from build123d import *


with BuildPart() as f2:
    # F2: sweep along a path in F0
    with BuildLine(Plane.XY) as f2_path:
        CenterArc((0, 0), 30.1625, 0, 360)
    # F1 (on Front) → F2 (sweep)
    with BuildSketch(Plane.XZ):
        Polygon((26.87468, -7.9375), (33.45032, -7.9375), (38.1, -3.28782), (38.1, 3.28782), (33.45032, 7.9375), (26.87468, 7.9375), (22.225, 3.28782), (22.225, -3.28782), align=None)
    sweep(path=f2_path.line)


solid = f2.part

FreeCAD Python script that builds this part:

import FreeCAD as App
import Part
import Sketcher
Q = App.Units.Quantity


def add_polygon(sketch, points):
    """Adds a closed chain of lines whose ends are joined by coincident constraints."""
    first, n = sketch.GeometryCount, len(points)
    for a, b in zip(points, points[1:] + points[:1]):
        sketch.addGeometry(Part.LineSegment(App.Vector(*a, 0), App.Vector(*b, 0)), False)
    for i in range(n):
        sketch.addConstraint(Sketcher.Constraint("Coincident", first + i, 2, first + (i + 1) % n, 1))

doc = App.newDocument("Part")
body = doc.addObject("PartDesign::Body", "Body")

sketch1 = body.newObject("Sketcher::SketchObject", "Sketch")
sketch1.AttachmentSupport = (doc.getObject("XZ_Plane"), [""])
sketch1.MapMode = "FlatFace"
add_polygon(sketch1, [(27, -8), (33, -8), (38, -3), (38, 3), (33, 8), (27, 8), (22, 3), (22, -3)])
sketch1.addConstraint([
    Sketcher.Constraint("Horizontal", 0),
    Sketcher.Constraint("Vertical", 2),
    Sketcher.Constraint("Horizontal", 4),
    Sketcher.Constraint("Vertical", 6),
    Sketcher.Constraint("Symmetric", 0, 2, 3, 2, -1),
    Sketcher.Constraint("Perpendicular", 1, 3),
    Sketcher.Constraint("Perpendicular", 3, 5),
    Sketcher.Constraint("Perpendicular", 5, 7),
    Sketcher.Constraint("Horizontal", 2, 2, 5, 2),
    Sketcher.Constraint("Horizontal", 1, 2, 6, 2),
    Sketcher.Constraint("Vertical", 4, 2, 7, 2),
    Sketcher.Constraint("Equal", 4, 2),
    Sketcher.Constraint("DistanceX", -1, 1, 1, 2, Q("1.5 in")),
    Sketcher.Constraint("DistanceY", 0, 2, -1, 1, Q("0.3125 in")),
    Sketcher.Constraint("DistanceX", 0, 1, 0, 2, Q("6.57564 mm")),
])

sketch2 = body.newObject("Sketcher::SketchObject", "Sketch001")
sketch2.AttachmentSupport = (doc.getObject("XY_Plane"), [""])
sketch2.MapMode = "FlatFace"
sketch2.addGeometry(Part.Circle(App.Vector(0, 0, 0), App.Vector(0, 0, 1), 30), False)
sketch2.addConstraint([
    Sketcher.Constraint("Coincident", 0, 3, -1, 1),
    Sketcher.Constraint("Diameter", 0, Q("2.375 in")),
])
doc.recompute()

additivepipe = body.newObject("PartDesign::AdditivePipe", "AdditivePipe")
additivepipe.Profile = sketch1
additivepipe.Spine = (sketch2, ["Edge1"])

doc.recompute()
